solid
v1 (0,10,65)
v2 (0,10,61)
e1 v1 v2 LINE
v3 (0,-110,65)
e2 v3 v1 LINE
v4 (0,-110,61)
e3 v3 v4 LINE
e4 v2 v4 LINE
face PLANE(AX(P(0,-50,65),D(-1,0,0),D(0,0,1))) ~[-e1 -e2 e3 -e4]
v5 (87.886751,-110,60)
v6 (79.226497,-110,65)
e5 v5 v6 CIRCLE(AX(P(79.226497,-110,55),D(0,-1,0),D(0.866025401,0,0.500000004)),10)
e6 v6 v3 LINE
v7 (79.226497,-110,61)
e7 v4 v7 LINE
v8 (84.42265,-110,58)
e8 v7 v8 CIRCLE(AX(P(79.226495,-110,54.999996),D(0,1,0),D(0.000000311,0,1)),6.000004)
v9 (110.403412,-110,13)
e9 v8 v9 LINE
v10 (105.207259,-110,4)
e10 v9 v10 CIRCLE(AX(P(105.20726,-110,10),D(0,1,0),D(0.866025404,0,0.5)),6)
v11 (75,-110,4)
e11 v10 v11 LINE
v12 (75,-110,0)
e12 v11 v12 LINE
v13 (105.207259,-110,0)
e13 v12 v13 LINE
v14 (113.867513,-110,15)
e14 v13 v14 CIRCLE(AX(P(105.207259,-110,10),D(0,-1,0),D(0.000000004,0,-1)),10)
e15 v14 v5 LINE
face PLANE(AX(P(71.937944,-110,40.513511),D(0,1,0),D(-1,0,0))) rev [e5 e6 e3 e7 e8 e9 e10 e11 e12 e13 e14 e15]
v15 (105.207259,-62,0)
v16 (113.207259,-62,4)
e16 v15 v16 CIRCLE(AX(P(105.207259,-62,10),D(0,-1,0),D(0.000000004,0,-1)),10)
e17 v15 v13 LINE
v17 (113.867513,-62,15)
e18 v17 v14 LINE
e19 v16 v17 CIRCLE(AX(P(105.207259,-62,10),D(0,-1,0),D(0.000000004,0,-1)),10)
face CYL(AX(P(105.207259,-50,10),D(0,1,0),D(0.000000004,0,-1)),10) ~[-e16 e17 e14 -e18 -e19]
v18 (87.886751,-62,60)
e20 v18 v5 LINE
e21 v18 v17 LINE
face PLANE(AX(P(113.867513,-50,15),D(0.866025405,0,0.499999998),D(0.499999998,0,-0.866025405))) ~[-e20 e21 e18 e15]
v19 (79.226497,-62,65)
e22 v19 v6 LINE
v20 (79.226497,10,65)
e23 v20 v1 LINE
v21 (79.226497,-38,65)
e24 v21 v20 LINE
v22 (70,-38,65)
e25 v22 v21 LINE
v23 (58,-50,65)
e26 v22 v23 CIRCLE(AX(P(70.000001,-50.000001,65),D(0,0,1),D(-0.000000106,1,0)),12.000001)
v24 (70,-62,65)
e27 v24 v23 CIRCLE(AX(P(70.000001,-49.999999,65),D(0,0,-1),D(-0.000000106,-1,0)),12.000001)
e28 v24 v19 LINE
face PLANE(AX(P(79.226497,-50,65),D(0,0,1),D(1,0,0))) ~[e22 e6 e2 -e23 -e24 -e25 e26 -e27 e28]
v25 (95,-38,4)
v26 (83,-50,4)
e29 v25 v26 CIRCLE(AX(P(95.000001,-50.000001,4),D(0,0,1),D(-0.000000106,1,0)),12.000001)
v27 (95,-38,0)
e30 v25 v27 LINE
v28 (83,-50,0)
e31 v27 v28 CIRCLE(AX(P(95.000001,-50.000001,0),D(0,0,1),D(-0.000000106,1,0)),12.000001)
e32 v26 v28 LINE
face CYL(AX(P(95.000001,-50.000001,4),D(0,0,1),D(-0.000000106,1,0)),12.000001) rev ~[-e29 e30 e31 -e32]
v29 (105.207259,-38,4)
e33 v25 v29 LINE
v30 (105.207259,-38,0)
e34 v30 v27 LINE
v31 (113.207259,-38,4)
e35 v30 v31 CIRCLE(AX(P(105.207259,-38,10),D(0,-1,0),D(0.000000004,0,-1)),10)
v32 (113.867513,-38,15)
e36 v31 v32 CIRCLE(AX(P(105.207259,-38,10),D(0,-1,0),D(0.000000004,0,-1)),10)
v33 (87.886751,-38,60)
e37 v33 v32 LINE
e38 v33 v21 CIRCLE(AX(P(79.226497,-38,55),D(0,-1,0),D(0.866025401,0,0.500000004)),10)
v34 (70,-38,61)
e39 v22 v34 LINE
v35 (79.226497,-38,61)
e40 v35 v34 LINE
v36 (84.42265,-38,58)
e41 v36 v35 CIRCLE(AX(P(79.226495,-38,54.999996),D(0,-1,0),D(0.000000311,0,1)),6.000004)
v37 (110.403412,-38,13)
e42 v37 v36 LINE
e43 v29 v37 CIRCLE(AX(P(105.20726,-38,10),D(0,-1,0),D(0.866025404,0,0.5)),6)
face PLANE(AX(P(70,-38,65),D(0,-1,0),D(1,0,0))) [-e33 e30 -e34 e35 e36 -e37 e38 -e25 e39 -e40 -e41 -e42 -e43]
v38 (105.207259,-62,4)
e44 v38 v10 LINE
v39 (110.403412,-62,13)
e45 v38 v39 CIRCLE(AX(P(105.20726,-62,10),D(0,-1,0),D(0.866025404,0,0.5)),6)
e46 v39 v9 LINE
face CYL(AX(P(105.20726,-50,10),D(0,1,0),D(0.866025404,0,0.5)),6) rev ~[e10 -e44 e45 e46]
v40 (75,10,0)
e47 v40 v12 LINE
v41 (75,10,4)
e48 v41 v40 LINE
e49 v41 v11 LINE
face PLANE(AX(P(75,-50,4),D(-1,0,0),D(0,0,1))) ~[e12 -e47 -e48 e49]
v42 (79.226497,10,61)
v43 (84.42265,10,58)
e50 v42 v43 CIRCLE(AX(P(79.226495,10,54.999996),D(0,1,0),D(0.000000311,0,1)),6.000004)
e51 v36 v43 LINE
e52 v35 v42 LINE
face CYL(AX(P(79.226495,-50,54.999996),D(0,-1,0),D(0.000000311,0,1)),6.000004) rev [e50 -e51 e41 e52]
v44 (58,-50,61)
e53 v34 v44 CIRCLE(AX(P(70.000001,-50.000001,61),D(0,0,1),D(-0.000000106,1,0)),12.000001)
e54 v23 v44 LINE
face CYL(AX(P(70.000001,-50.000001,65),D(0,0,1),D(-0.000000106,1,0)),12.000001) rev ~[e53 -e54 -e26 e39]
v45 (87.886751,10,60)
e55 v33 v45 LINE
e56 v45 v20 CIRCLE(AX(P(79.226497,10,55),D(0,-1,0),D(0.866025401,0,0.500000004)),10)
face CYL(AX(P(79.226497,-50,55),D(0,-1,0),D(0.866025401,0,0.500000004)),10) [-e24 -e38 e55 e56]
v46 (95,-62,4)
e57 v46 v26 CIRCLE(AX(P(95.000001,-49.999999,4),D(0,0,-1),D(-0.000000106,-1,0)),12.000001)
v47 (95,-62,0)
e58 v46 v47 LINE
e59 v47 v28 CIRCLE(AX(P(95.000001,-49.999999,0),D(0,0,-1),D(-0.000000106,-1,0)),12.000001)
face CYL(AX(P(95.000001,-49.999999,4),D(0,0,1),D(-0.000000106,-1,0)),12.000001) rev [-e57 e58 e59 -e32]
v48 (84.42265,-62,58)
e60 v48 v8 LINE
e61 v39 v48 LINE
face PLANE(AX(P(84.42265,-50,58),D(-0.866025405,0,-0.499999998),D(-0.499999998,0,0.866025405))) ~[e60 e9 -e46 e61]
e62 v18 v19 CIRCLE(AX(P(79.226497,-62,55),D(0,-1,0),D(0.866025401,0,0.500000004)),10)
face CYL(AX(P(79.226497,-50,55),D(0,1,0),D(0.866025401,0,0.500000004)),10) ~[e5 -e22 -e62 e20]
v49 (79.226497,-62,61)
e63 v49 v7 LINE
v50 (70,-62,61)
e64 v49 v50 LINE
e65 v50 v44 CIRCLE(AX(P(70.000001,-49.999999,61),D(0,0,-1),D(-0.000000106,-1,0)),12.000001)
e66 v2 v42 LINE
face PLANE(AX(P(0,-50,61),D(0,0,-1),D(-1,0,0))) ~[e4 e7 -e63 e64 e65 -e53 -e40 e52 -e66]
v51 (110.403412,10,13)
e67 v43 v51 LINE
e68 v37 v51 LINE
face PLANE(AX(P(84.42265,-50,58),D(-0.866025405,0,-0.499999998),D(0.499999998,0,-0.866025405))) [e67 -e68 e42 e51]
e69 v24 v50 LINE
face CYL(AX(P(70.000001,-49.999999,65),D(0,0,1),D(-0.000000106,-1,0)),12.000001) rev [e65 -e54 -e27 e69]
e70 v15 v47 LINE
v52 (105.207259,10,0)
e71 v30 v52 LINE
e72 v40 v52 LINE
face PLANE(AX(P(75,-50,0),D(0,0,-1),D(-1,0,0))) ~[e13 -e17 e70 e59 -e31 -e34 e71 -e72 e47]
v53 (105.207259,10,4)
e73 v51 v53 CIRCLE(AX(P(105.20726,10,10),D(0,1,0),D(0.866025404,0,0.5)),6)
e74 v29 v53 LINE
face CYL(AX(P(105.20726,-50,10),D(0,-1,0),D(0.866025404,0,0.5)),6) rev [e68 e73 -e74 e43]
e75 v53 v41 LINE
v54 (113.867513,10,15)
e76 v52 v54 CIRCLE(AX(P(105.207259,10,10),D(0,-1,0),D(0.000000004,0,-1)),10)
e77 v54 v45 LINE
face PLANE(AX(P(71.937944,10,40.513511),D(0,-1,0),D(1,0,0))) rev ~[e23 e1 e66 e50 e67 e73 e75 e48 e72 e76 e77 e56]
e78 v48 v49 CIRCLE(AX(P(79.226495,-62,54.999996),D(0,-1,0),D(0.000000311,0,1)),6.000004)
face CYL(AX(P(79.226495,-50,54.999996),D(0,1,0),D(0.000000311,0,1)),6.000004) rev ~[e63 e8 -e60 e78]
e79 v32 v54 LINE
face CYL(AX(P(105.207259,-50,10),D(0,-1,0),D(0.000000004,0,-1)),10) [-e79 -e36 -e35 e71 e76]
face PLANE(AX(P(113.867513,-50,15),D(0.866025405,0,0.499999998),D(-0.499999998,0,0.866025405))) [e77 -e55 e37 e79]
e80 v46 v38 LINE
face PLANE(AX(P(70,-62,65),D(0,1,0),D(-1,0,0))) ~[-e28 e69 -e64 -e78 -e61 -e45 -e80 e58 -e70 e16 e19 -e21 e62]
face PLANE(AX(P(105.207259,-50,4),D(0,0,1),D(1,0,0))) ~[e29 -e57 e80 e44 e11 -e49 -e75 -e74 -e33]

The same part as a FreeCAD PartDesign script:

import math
import FreeCAD as App
import Part
import Sketcher

V = App.Vector
Q = App.Units.Quantity

doc = App.newDocument("Part")
body = doc.addObject("PartDesign::Body", "Body")

# Sketch on XZ plane
sketch1 = doc.addObject("Sketcher::SketchObject", "Sketch")
body.addObject(sketch1)
sketch1.AttachmentSupport = (doc.XZ_Plane, [""])
sketch1.MapMode = "FlatFace"
sketch1.AttachmentOffset = App.Placement(V(0, 0, 50), App.Rotation())
sketch1.addGeometry([
    Part.LineSegment(V(0, 65, 0), V(0, 61, 0)),  # 0
    Part.LineSegment(V(0, 61, 0), V(79.226497, 61, 0)),  # 1
    Part.ArcOfCircle(Part.Circle(V(79.226495, 54.999996, 0), V(0, 0, 1), 6.000004), math.radians(30.000023), math.radians(89.999982)),  # 2
    Part.LineSegment(V(84.42265, 58, 0), V(110.403412, 13, 0)),  # 3
    Part.ArcOfCircle(Part.Circle(V(105.20726, 10, 0), V(0, 0, 1), 6), math.radians(-90.000006), math.radians(30)),  # 4
    Part.LineSegment(V(105.207259, 4, 0), V(75, 4, 0)),  # 5
    Part.LineSegment(V(75, 4, 0), V(75, 0, 0)),  # 6
    Part.LineSegment(V(75, 0, 0), V(105.207259, 0, 0)),  # 7
    Part.ArcOfCircle(Part.Circle(V(105.207259, 10, 0), V(0, 0, 1), 10), math.radians(-90), math.radians(30)),  # 8
    Part.LineSegment(V(113.867513, 15, 0), V(87.886751, 60, 0)),  # 9
    Part.ArcOfCircle(Part.Circle(V(79.226497, 55, 0), V(0, 0, 1), 10), math.radians(30), math.radians(89.999999)),  # 10
    Part.LineSegment(V(79.226497, 65, 0), V(0, 65, 0)),  # 11
], False)
sketch1.addConstraint([
    Sketcher.Constraint("Coincident", 0, 2, 1, 1),
    Sketcher.Constraint("Tangent", 1, 2, 2, 2),
    Sketcher.Constraint("Tangent", 2, 1, 3, 1),
    Sketcher.Constraint("Tangent", 3, 2, 4, 2),
    Sketcher.Constraint("Tangent", 4, 1, 5, 1),
    Sketcher.Constraint("Coincident", 5, 2, 6, 1),
    Sketcher.Constraint("Coincident", 6, 2, 7, 1),
    Sketcher.Constraint("Tangent", 7, 2, 8, 1),
    Sketcher.Constraint("Tangent", 8, 2, 9, 1),
    Sketcher.Constraint("Tangent", 9, 2, 10, 1),
    Sketcher.Constraint("Tangent", 10, 2, 11, 1),
    Sketcher.Constraint("Coincident", 11, 2, 0, 1),
    Sketcher.Constraint("Vertical", 0),
    Sketcher.Constraint("Horizontal", 1),
    Sketcher.Constraint("Horizontal", 5),
    Sketcher.Constraint("Vertical", 6),
    Sketcher.Constraint("Horizontal", 7),
    Sketcher.Constraint("Horizontal", 11),
    Sketcher.Constraint("Coincident", 8, 3, 4, 3),
    Sketcher.Constraint("Coincident", 10, 3, 2, 3),
    Sketcher.Constraint("Equal", 8, 10),
    Sketcher.Constraint("PointOnObject", 0, 2, -2),
    Sketcher.Constraint("PointOnObject", 6, 2, -1),
    Sketcher.Constraint("Parallel", 3, 9),
    Sketcher.Constraint("Radius", 4, Q("6 mm")),
    Sketcher.Constraint("Radius", 8, Q("10 mm")),
    Sketcher.Constraint("Angle", 3, Q("-60 deg")),
    Sketcher.Constraint("DistanceY", -1, 1, 10, 3, Q("55 mm")),
    Sketcher.Constraint("DistanceX", -1, 1, 5, 2, Q("75 mm")),
    Sketcher.Constraint("DistanceX", 5, 2, 5, 1, Q("30.207259 mm")),
])
pad1 = doc.addObject("PartDesign::Pad", "Pad")
body.addObject(pad1)
pad1.Profile = sketch1
pad1.Length = 60
pad1.Reversed = True

# Sketch on XY plane
sketch2 = doc.addObject("Sketcher::SketchObject", "Sketch001")
body.addObject(sketch2)
sketch2.AttachmentSupport = (doc.XY_Plane, [""])
sketch2.MapMode = "FlatFace"
sketch2.AttachmentOffset = App.Placement(V(0, 0, 65), App.Rotation())
sketch2.addGeometry([
    Part.ArcOfCircle(Part.Circle(V(70.000001, -50.000001, 0), V(0, 0, 1), 12.000001), math.radians(90.000006), math.radians(179.999994)),
    Part.LineSegment(V(58, -50, 0), V(125.207259, -50, 0)),
    Part.LineSegment(V(125.207259, -50, 0), V(125.207259, -38, 0)),
    Part.LineSegment(V(125.207259, -38, 0), V(70, -38, 0)),
], False)
sketch2.addConstraint([
    Sketcher.Constraint("Coincident", 0, 2, 1, 1),
    Sketcher.Constraint("Coincident", 1, 2, 2, 1),
    Sketcher.Constraint("Coincident", 2, 2, 3, 1),
    Sketcher.Constraint("Tangent", 3, 2, 0, 1),
    Sketcher.Constraint("Horizontal", 1),
    Sketcher.Constraint("Vertical", 2),
    Sketcher.Constraint("Horizontal", 3),
    Sketcher.Constraint("Radius", 0, Q("12.000001 mm")),
    Sketcher.Constraint("DistanceY", 2, 1, 2, 2, Q("12 mm")),
    Sketcher.Constraint("DistanceX", -1, 1, 0, 3, Q("70.000001 mm")),
    Sketcher.Constraint("DistanceY", 0, 3, -1, 1, Q("50.000001 mm")),
    Sketcher.Constraint("DistanceX", 1, 1, 1, 2, Q("67.207259 mm")),
])
pocket1 = doc.addObject("PartDesign::Pocket", "Pocket")
body.addObject(pocket1)
pocket1.Profile = sketch2
pocket1.Length = 61

# Sketch on XY plane
sketch3 = doc.addObject("Sketcher::SketchObject", "Sketch002")
body.addObject(sketch3)
sketch3.AttachmentSupport = (doc.XY_Plane, [""])
sketch3.MapMode = "FlatFace"
sketch3.AttachmentOffset = App.Placement(V(0, 0, 4), App.Rotation())
sketch3.addGeometry([
    Part.LineSegment(V(83, -50, 0), V(113.207259, -50, 0)),
    Part.LineSegment(V(113.207259, -50, 0), V(113.207259, -38, 0)),
    Part.LineSegment(V(113.207259, -38, 0), V(95, -38, 0)),
    Part.ArcOfCircle(Part.Circle(V(95.000001, -50.000001, 0), V(0, 0, 1), 12.000001), math.radians(90.000006), math.radians(179.999994)),
], False)
sketch3.addConstraint([
    Sketcher.Constraint("Coincident", 0, 2, 1, 1),
    Sketcher.Constraint("Coincident", 1, 2, 2, 1),
    Sketcher.Constraint("Tangent", 2, 2, 3, 1),
    Sketcher.Constraint("Coincident", 3, 2, 0, 1),
    Sketcher.Constraint("Horizontal", 0),
    Sketcher.Constraint("Vertical", 1),
    Sketcher.Constraint("Horizontal", 2),
    Sketcher.Constraint("Horizontal", 3, 3, 0, 2),
    Sketcher.Constraint("Radius", 3, Q("12.000001 mm")),
    Sketcher.Constraint("DistanceX", -1, 1, 3, 3, Q("95.000001 mm")),
    Sketcher.Constraint("DistanceY", 3, 3, -1, 1, Q("50.000001 mm")),
    Sketcher.Constraint("DistanceX", 0, 1, 0, 2, Q("30.207259 mm")),
])
pocket2 = doc.addObject("PartDesign::Pocket", "Pocket001")
body.addObject(pocket2)
pocket2.Profile = sketch3
pocket2.Type = "ThroughAll"
body2 = doc.addObject("PartDesign::Body", "Body001")
doc.recompute()

body2.BaseFeature = body
doc.recompute()

mirroring = doc.addObject("Part::Mirroring", "Mirroring")
mirroring.Source = body
mirroring.Base = V(29, -50, 63)
mirroring.Normal = V(0, -1, 0)
body3 = doc.addObject("PartDesign::Body", "Body002")
body3.BaseFeature = mirroring
boolean = doc.addObject("PartDesign::Boolean", "Boolean")
body2.addObject(boolean)
boolean.Type = "Fuse"
boolean.addObjects([body3])
doc.recompute()
mirroring.Visibility = False

doc.recompute()
